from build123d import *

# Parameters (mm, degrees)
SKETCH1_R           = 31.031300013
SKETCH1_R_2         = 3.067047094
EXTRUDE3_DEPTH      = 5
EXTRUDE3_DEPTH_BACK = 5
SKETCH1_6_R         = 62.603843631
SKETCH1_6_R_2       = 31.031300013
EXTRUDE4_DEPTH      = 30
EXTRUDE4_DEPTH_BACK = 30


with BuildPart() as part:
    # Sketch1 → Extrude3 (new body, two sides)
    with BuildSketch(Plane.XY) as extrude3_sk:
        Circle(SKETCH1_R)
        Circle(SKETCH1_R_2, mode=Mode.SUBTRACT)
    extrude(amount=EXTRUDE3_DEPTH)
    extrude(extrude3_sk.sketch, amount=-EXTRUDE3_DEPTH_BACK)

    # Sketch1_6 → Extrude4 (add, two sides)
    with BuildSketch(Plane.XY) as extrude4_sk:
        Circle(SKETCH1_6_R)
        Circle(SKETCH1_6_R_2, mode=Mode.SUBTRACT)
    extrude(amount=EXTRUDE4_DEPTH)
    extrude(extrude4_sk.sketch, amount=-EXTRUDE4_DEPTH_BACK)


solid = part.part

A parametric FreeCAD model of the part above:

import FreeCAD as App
import Part
import Sketcher
from FreeCAD import Vector

doc = App.newDocument("Part")
params = doc.addObject("Spreadsheet::Sheet", "Params")
for row, (alias, value) in enumerate([
    ("pad1_length", "5 mm"),
    ("pad1_length2", "5 mm"),
    ("pad2_length", "30 mm"),
    ("pad2_length2", "30 mm"),
], start=1):
    params.set(f"A{row}", alias)
    params.set(f"B{row}", "=" + value)
    params.setAlias(f"B{row}", alias)

body = doc.addObject("PartDesign::Body", "Body")

# Sketch on XY plane
sketch1 = body.newObject("Sketcher::SketchObject", "Sketch")
sketch1.AttachmentSupport = (doc.getObject("XY_Plane"), [""])
sketch1.MapMode = "FlatFace"
sketch1.addGeometry([
    Part.Circle(Vector(0, 0, 0), Vector(0, 0, 1), 31.0313),
    Part.Circle(Vector(0, 0, 0), Vector(0, 0, 1), 3.067047),
], False)
sketch1.addConstraint([
    Sketcher.Constraint("Coincident", 0, 3, -1, 1),
    Sketcher.Constraint("Coincident", 1, 3, -1, 1),
    Sketcher.Constraint("Diameter", 0, 62.0626),
    Sketcher.Constraint("Diameter", 1, 6.134094),
])
pad1 = body.newObject("PartDesign::Pad", "Pad")
pad1.Profile = sketch1
pad1.Type = "TwoLengths"
pad1.setExpression("Length", "Params.pad1_length")
pad1.setExpression("Length2", "Params.pad1_length2")

# Sketch on XY plane
sketch2 = body.newObject("Sketcher::SketchObject", "Sketch001")
sketch2.AttachmentSupport = (doc.getObject("XY_Plane"), [""])
sketch2.MapMode = "FlatFace"
sketch2.addGeometry([
    Part.Circle(Vector(0, 0, 0), Vector(0, 0, 1), 62.603844),
    Part.Circle(Vector(0, 0, 0), Vector(0, 0, 1), 31.0313),
], False)
sketch2.addConstraint([
    Sketcher.Constraint("Coincident", 0, 3, -1, 1),
    Sketcher.Constraint("Coincident", 1, 3, -1, 1),
    Sketcher.Constraint("Diameter", 1, 62.0626),
    Sketcher.Constraint("Diameter", 0, 125.207687),
])
pad2 = body.newObject("PartDesign::Pad", "Pad001")
pad2.Profile = sketch2
pad2.Type = "TwoLengths"
pad2.setExpression("Length", "Params.pad2_length")
pad2.setExpression("Length2", "Params.pad2_length2")

doc.recompute()
